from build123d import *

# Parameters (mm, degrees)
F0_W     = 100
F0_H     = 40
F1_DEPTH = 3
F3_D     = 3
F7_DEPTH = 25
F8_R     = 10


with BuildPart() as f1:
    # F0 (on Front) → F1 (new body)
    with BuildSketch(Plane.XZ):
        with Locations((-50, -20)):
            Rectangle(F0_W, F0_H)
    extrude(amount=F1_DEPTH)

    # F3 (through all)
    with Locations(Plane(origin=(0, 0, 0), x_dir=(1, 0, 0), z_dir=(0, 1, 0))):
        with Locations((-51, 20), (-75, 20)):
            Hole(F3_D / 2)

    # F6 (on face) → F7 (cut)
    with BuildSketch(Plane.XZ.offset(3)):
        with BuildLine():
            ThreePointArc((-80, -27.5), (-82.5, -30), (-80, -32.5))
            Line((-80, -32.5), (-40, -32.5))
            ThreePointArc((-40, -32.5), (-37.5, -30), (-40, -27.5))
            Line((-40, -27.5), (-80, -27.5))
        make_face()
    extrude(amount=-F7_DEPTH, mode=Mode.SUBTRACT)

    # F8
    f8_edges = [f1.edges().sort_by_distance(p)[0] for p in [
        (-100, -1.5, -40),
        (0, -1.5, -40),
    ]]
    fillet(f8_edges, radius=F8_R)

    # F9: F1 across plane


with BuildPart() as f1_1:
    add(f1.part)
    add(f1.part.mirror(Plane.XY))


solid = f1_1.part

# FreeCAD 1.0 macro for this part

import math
import FreeCAD as App
import Part
import Sketcher

V = App.Vector


def edges_at(feature, points):
    """Names of the edges that pass closest to the given points."""
    edges = feature.Shape.Edges
    near = lambda p: min(range(len(edges)), key=lambda i: edges[i].distToShape(Part.Vertex(*p))[0])
    return sorted({f"Edge{near(p) + 1}" for p in points})

doc = App.newDocument("Part")
params = doc.addObject("Spreadsheet::Sheet", "Params")
for row, (alias, value) in enumerate([
    ("sketch1_width", "100 mm"),
    ("sketch1_height", "40 mm"),
    ("pad1_length", "3 mm"),
    ("sketch2_diameter", "3 mm"),
    ("hole_diameter", "3 mm"),
    ("sketch3_radius", "2.5 mm"),
    ("sketch3_width", "40 mm"),
    ("pocket1_length", "25 mm"),
    ("fillet_radius", "10 mm"),
], start=1):
    params.set(f"A{row}", alias)
    params.set(f"B{row}", "=" + value)
    params.setAlias(f"B{row}", alias)

body = doc.addObject("PartDesign::Body", "Body")

sketch1 = doc.addObject("Sketcher::SketchObject", "Sketch")
body.addObject(sketch1)
sketch1.AttachmentSupport = (doc.XZ_Plane, [""])
sketch1.MapMode = "FlatFace"
sketch1.addGeometry(Part.LineSegment(V(-100, 0, 0), V(-100, -40, 0)), False)
sketch1.addGeometry(Part.LineSegment(V(-100, -40, 0), V(0, -40, 0)), False)
sketch1.addGeometry(Part.LineSegment(V(0, -40, 0), V(0, 0, 0)), False)
sketch1.addGeometry(Part.LineSegment(V(0, 0, 0), V(-100, 0, 0)), False)
sketch1.addConstraint(Sketcher.Constraint("Coincident", 0, 2, 1, 1))
sketch1.addConstraint(Sketcher.Constraint("Coincident", 1, 2, 2, 1))
sketch1.addConstraint(Sketcher.Constraint("Coincident", 2, 2, 3, 1))
sketch1.addConstraint(Sketcher.Constraint("Coincident", 3, 2, 0, 1))
sketch1.addConstraint(Sketcher.Constraint("Vertical", 0))
sketch1.addConstraint(Sketcher.Constraint("Horizontal", 1))
sketch1.addConstraint(Sketcher.Constraint("Vertical", 2))
sketch1.addConstraint(Sketcher.Constraint("Horizontal", 3))
sketch1.addConstraint(Sketcher.Constraint("Coincident", 2, 2, -1, 1))
sketch1.addConstraint(Sketcher.Constraint("DistanceX", 1, 1, 1, 2, 100.0))
sketch1.addConstraint(Sketcher.Constraint("DistanceY", 0, 2, 0, 1, 40.0))
sketch1.setExpression("Constraints[9]", "Params.sketch1_width")
sketch1.setExpression("Constraints[10]", "Params.sketch1_height")
pad1 = doc.addObject("PartDesign::Pad", "Pad")
body.addObject(pad1)
pad1.Profile = sketch1
pad1.setExpression("Length", "Params.pad1_length")

sketch2 = doc.addObject("Sketcher::SketchObject", "Sketch001")
body.addObject(sketch2)
sketch2.AttachmentSupport = (doc.XZ_Plane, [""])
sketch2.MapMode = "FlatFace"
sketch2.addGeometry(Part.Circle(V(-51, -20, 0), V(0, 0, 1), 1.5), False)
sketch2.addGeometry(Part.Circle(V(-75, -20, 0), V(0, 0, 1), 1.5), False)
sketch2.addConstraint(Sketcher.Constraint("Equal", 0, 1))
sketch2.addConstraint(Sketcher.Constraint("Horizontal", 0, 3, 1, 3))
sketch2.addConstraint(Sketcher.Constraint("Diameter", 0, 3.0))
sketch2.addConstraint(Sketcher.Constraint("DistanceX", 0, 3, -1, 1, 51.0))
sketch2.addConstraint(Sketcher.Constraint("DistanceY", 0, 3, -1, 1, 20.0))
sketch2.addConstraint(Sketcher.Constraint("DistanceX", 1, 3, -1, 1, 75.0))
sketch2.setExpression("Constraints[2]", "Params.sketch2_diameter")
doc.recompute()
hole = doc.addObject("PartDesign::Hole", "Hole")
body.addObject(hole)
hole.Profile = sketch2
hole.ThreadType = "None"
hole.setExpression("Diameter", "Params.hole_diameter")
hole.DepthType = "ThroughAll"
hole.Reversed = True

sketch3 = doc.addObject("Sketcher::SketchObject", "Sketch002")
body.addObject(sketch3)
sketch3.AttachmentSupport = (doc.XZ_Plane, [""])
sketch3.MapMode = "FlatFace"
sketch3.AttachmentOffset = App.Placement(V(0, 0, 3), App.Rotation())
sketch3.addGeometry(Part.ArcOfCircle(Part.Circle(V(-80, -30, 0), V(0, 0, 1), 2.5), math.radians(90), math.radians(270)), False)
sketch3.addGeometry(Part.LineSegment(V(-80, -32.5, 0), V(-40, -32.5, 0)), False)
sketch3.addGeometry(Part.ArcOfCircle(Part.Circle(V(-40, -30, 0), V(0, 0, 1), 2.5), math.radians(-90), math.radians(90)), False)
sketch3.addGeometry(Part.LineSegment(V(-40, -27.5, 0), V(-80, -27.5, 0)), False)
sketch3.addConstraint(Sketcher.Constraint("Tangent", 0, 2, 1, 1))
sketch3.addConstraint(Sketcher.Constraint("Tangent", 1, 2, 2, 1))
sketch3.addConstraint(Sketcher.Constraint("Tangent", 2, 2, 3, 1))
sketch3.addConstraint(Sketcher.Constraint("Tangent", 3, 2, 0, 1))
sketch3.addConstraint(Sketcher.Constraint("Horizontal", 1))
sketch3.addConstraint(Sketcher.Constraint("Horizontal", 3))
sketch3.addConstraint(Sketcher.Constraint("Radius", 0, 2.5))
sketch3.addConstraint(Sketcher.Constraint("DistanceX", 1, 1, 1, 2, 40.0))
sketch3.addConstraint(Sketcher.Constraint("DistanceX", 0, 3, -1, 1, 80.0))
sketch3.addConstraint(Sketcher.Constraint("DistanceY", 0, 3, -1, 1, 30.0))
sketch3.setExpression("Constraints[6]", "Params.sketch3_radius")
sketch3.setExpression("Constraints[7]", "Params.sketch3_width")
pocket1 = doc.addObject("PartDesign::Pocket", "Pocket")
body.addObject(pocket1)
pocket1.Profile = sketch3
pocket1.setExpression("Length", "Params.pocket1_length")
doc.recompute()

fillet = doc.addObject("PartDesign::Fillet", "Fillet")
body.addObject(fillet)
fillet.Base = (pocket1, edges_at(pocket1, [(-100, -1.5, -40), (0, -1.5, -40)]))
fillet.setExpression("Radius", "Params.fillet_radius")
body2 = doc.addObject("PartDesign::Body", "Body001")
doc.recompute()

body2.BaseFeature = body
doc.recompute()

mirroring = doc.addObject("Part::Mirroring", "Mirroring")
mirroring.Source = body
mirroring.Base = V(0, 0, 0)
mirroring.Normal = V(0, 0, 1)
body3 = doc.addObject("PartDesign::Body", "Body002")
body3.BaseFeature = mirroring
boolean = doc.addObject("PartDesign::Boolean", "Boolean")
body2.addObject(boolean)
boolean.Type = "Fuse"
boolean.addObjects([body3])
doc.recompute()
mirroring.Visibility = False

doc.recompute()
